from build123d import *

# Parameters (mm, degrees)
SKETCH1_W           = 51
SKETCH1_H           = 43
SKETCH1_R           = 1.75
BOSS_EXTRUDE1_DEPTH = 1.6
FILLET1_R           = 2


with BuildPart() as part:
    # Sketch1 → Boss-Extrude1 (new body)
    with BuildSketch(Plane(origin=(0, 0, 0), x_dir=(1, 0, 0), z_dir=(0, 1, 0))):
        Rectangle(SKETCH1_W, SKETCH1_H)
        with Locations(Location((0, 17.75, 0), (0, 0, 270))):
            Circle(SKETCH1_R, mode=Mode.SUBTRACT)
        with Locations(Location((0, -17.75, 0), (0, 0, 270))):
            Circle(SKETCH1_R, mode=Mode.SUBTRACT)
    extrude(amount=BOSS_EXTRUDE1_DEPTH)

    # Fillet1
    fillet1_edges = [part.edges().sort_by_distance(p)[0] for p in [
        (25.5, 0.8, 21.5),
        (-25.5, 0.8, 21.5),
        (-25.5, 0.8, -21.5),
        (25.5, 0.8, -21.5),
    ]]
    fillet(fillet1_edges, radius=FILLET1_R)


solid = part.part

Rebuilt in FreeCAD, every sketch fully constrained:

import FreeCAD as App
import Part
import Sketcher

V = App.Vector
Q = App.Units.Quantity


def edges_at(feature, points):
    """Names of the edges that pass closest to the given points."""
    edges = feature.Shape.Edges
    near = lambda p: min(range(len(edges)), key=lambda i: edges[i].distToShape(Part.Vertex(*p))[0])
    return sorted({f"Edge{near(p) + 1}" for p in points})


def add_polygon(sketch, points):
    """Adds a closed chain of lines whose ends are joined by coincident constraints."""
    first, n = sketch.GeometryCount, len(points)
    for a, b in zip(points, points[1:] + points[:1]):
        sketch.addGeometry(Part.LineSegment(App.Vector(*a, 0), App.Vector(*b, 0)), False)
    for i in range(n):
        sketch.addConstraint(Sketcher.Constraint("Coincident", first + i, 2, first + (i + 1) % n, 1))

doc = App.newDocument("Part")
body = doc.addObject("PartDesign::Body", "Body")

# Sketch on XZ plane
sketch1 = body.newObject("Sketcher::SketchObject", "Sketch")
sketch1.AttachmentSupport = (doc.getObject("XZ_Plane"), [""])
sketch1.MapMode = "FlatFace"
add_polygon(sketch1, [(-25.5, -21.5), (-25.5, 21.5), (25.5, 21.5), (25.5, -21.5)])  # lines 0-3
sketch1.addGeometry(Part.Circle(V(0, 17.8, 0), V(0, 0, 1), 1.8), False)  # 4
sketch1.addGeometry(Part.Circle(V(0, -17.8, 0), V(0, 0, 1), 1.8), False)  # 5
sketch1.addConstraint(Sketcher.Constraint("Vertical", 0))
sketch1.addConstraint(Sketcher.Constraint("Horizontal", 1))
sketch1.addConstraint(Sketcher.Constraint("Vertical", 2))
sketch1.addConstraint(Sketcher.Constraint("Horizontal", 3))
sketch1.addConstraint(Sketcher.Constraint("Equal", 4, 5))
sketch1.addConstraint(Sketcher.Constraint("Symmetric", 4, 3, 5, 3, -1, 1))
sketch1.addConstraint(Sketcher.Constraint("Symmetric", 0, 2, 2, 2, -1, 1))
sketch1.addConstraint(Sketcher.Constraint("PointOnObject", 4, 3, -2))
sketch1.addConstraint(Sketcher.Constraint("Diameter", 4, Q("3.5 mm")))
sketch1.addConstraint(Sketcher.Constraint("DistanceX", 1, 1, 1, 2, Q("51 mm")))
sketch1.addConstraint(Sketcher.Constraint("DistanceY", 0, 1, 0, 2, Q("43 mm")))
sketch1.addConstraint(Sketcher.Constraint("DistanceY", 5, 3, 4, 3, Q("35.5 mm")))
pad1 = body.newObject("PartDesign::Pad", "Pad")
pad1.Profile = sketch1
pad1.Length = 1.6
pad1.Reversed = True
doc.recompute()

fillet = body.newObject("PartDesign::Fillet", "Fillet")
fillet.Base = (pad1, edges_at(pad1, [
    (25.5, 0.8, 21.5),
    (-25.5, 0.8, 21.5),
    (-25.5, 0.8, -21.5),
    (25.5, 0.8, -21.5),
]))
fillet.Radius = 2

doc.recompute()
